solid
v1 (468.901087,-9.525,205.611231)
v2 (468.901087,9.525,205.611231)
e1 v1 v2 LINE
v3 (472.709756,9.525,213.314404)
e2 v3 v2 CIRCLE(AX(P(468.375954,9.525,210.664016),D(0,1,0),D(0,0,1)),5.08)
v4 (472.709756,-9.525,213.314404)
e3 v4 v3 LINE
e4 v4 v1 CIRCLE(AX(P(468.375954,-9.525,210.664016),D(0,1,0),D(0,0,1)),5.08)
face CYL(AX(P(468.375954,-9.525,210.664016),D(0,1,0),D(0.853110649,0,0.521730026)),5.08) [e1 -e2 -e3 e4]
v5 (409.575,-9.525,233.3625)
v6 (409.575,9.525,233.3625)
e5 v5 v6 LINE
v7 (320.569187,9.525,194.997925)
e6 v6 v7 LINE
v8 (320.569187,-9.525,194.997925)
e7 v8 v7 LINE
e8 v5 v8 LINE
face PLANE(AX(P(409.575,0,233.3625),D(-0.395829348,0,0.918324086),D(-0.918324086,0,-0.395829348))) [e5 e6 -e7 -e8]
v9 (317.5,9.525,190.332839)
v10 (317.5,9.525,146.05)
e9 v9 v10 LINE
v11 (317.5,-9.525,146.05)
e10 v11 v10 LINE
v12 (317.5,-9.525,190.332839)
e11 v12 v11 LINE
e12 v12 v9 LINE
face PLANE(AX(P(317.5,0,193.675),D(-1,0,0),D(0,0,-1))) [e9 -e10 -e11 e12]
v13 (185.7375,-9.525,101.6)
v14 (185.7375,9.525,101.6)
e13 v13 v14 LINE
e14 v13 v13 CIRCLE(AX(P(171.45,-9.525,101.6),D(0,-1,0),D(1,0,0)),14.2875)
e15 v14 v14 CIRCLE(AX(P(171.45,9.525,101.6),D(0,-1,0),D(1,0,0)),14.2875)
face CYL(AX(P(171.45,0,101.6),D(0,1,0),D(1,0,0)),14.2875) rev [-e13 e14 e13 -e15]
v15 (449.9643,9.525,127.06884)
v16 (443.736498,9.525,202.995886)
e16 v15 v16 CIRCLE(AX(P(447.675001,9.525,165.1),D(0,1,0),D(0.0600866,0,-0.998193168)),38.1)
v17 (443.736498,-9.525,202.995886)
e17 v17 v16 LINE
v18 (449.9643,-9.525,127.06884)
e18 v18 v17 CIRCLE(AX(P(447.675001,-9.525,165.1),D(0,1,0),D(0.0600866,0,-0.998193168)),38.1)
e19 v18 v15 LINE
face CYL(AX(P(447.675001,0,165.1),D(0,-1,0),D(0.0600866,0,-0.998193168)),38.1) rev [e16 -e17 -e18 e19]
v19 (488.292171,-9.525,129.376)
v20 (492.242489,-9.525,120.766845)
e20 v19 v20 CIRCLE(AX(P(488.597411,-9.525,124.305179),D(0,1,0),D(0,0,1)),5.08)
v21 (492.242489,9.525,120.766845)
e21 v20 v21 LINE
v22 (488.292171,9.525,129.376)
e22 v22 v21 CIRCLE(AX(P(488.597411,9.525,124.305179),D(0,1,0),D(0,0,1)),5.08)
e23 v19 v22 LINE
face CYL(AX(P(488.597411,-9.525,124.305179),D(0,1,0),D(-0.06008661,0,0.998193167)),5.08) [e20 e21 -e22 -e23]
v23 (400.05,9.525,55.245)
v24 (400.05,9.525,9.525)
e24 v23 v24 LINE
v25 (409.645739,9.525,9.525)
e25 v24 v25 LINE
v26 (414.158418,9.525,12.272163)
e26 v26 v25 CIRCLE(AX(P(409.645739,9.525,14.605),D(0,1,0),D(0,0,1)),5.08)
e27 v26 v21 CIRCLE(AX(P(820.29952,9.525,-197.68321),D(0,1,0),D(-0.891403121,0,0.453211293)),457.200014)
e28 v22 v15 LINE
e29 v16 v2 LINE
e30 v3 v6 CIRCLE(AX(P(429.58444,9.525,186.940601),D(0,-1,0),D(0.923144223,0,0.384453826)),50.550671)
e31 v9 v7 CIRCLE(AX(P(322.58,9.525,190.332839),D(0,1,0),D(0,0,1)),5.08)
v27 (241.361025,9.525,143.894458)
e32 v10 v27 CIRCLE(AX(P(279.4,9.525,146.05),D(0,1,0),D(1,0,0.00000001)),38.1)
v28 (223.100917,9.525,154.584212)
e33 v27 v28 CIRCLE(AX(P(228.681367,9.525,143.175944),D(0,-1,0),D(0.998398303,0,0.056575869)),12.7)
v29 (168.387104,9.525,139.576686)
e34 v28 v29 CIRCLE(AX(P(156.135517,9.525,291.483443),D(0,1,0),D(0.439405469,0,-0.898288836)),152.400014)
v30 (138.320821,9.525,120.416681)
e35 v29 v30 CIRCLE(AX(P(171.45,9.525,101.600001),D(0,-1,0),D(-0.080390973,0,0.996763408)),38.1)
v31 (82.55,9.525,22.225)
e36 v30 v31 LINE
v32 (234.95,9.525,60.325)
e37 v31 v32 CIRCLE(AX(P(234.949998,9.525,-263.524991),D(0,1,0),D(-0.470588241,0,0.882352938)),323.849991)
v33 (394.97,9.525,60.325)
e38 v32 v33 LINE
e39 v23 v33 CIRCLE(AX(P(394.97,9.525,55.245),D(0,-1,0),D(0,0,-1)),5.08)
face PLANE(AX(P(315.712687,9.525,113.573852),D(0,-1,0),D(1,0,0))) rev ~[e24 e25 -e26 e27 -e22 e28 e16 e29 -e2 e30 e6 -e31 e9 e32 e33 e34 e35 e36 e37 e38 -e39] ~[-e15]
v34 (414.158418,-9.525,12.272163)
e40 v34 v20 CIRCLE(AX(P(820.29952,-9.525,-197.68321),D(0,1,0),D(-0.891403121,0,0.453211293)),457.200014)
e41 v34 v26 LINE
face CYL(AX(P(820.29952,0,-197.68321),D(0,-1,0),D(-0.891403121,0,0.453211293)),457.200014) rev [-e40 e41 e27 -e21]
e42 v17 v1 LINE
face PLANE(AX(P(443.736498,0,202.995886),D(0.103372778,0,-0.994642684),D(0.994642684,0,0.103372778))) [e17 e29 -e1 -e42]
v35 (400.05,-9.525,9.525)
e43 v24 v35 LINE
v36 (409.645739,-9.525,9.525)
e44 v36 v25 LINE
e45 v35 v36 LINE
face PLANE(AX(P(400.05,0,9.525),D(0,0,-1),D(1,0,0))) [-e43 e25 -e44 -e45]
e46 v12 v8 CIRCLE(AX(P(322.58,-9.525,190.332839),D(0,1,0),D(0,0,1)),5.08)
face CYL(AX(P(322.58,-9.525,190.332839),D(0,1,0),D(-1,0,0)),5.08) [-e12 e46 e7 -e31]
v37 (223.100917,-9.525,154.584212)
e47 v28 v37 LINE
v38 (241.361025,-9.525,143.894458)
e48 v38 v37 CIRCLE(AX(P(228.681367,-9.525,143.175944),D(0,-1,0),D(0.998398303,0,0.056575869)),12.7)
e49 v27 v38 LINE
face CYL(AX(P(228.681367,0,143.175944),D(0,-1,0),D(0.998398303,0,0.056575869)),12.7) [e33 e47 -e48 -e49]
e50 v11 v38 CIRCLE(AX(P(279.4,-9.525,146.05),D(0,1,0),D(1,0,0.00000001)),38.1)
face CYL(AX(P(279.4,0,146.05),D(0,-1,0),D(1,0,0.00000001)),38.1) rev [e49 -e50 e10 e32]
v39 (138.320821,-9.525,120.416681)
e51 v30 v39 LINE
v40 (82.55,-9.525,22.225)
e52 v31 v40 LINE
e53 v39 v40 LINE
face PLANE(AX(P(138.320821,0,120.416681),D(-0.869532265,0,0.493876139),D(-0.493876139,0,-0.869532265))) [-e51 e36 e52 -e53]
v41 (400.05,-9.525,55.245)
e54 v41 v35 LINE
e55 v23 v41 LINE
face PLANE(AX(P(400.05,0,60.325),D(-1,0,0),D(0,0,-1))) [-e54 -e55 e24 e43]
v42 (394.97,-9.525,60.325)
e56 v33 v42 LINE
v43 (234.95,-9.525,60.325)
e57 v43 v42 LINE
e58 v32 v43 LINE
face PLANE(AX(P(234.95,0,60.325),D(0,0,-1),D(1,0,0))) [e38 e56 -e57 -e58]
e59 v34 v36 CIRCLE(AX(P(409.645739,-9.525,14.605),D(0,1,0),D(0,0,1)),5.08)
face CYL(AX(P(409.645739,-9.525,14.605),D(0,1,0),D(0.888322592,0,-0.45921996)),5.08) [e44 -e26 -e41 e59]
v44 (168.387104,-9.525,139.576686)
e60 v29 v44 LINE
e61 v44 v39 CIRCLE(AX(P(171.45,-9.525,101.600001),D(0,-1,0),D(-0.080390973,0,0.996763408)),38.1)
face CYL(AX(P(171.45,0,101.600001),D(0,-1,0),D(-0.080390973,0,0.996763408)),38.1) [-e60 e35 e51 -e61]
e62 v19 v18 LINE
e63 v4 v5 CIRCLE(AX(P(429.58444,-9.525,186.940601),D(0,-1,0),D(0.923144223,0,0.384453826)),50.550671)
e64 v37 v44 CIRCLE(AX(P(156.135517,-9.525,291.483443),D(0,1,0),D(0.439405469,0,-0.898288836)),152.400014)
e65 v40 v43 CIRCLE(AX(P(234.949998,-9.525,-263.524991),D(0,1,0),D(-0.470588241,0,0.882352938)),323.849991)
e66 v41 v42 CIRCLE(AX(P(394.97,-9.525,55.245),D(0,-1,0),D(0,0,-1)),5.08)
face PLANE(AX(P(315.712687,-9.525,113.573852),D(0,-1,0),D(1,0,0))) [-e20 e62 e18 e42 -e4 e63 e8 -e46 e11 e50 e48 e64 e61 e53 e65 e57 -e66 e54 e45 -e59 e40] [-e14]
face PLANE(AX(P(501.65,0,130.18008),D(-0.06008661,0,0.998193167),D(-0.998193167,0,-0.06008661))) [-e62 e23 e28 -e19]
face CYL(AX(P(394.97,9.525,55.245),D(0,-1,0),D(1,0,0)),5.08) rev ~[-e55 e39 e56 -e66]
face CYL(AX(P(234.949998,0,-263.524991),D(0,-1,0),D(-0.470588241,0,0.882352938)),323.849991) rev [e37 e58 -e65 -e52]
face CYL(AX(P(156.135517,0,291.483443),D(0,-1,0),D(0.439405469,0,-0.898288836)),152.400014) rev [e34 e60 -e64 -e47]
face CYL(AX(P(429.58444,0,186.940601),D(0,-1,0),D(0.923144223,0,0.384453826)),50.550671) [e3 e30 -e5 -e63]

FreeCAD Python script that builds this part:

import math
import FreeCAD as App
import Part
import Sketcher

V = App.Vector
Q = App.Units.Quantity


def edges_at(feature, points):
    """Names of the edges that pass closest to the given points."""
    edges = feature.Shape.Edges
    near = lambda p: min(range(len(edges)), key=lambda i: edges[i].distToShape(Part.Vertex(*p))[0])
    return sorted({f"Edge{near(p) + 1}" for p in points})

doc = App.newDocument("Part")
body = doc.addObject("PartDesign::Body", "Body")

# Sketch on XZ plane
sketch1 = body.newObject("Sketcher::SketchObject", "Sketch")
sketch1.AttachmentSupport = (doc.getObject("XZ_Plane"), [""])
sketch1.MapMode = "FlatFace"
sketch1.addGeometry(Part.ArcOfCircle(Part.Circle(V(279, 146, 0), V(0, 0, 1), 38), math.radians(-177), math.radians(0)), False)
sketch1.addGeometry(Part.ArcOfCircle(Part.Circle(V(229, 143, 0), V(0, 0, 1), 13), math.radians(3), math.radians(116)), False)
sketch1.addGeometry(Part.ArcOfCircle(Part.Circle(V(156, 291, 0), V(0, 0, 1), 152), math.radians(-85), math.radians(-64)), False)
sketch1.addGeometry(Part.ArcOfCircle(Part.Circle(V(171, 102, 0), V(0, 0, 1), 38), math.radians(95), math.radians(150)), False)
sketch1.addGeometry(Part.LineSegment(V(138, 120, 0), V(83, 22, 0)), False)
sketch1.addGeometry(Part.ArcOfCircle(Part.Circle(V(235, -264, 0), V(0, 0, 1), 324), math.radians(90), math.radians(118)), False)
sketch1.addGeometry(Part.LineSegment(V(235, 60, 0), V(400, 60, 0)), False)
sketch1.addGeometry(Part.LineSegment(V(400, 60, 0), V(400, 10, 0)), False)
sketch1.addGeometry(Part.LineSegment(V(400, 10, 0), V(413, 10, 0)), False)
sketch1.addGeometry(Part.ArcOfCircle(Part.Circle(V(820, -198, 0), V(0, 0, 1), 457), math.radians(134.18), math.radians(153.05)), False)
sketch1.addGeometry(Part.LineSegment(V(502, 130, 0), V(450, 127, 0)), False)
sketch1.addGeometry(Part.ArcOfCircle(Part.Circle(V(448, 165, 0), V(0, 0, 1), 38), math.radians(96), math.radians(273)), False)
sketch1.addGeometry(Part.LineSegment(V(444, 203, 0), V(476, 206, 0)), False)
sketch1.addGeometry(Part.ArcOfCircle(Part.Circle(V(430, 187, 0), V(0, 0, 1), 51), math.radians(23), math.radians(113)), False)
sketch1.addGeometry(Part.LineSegment(V(410, 233, 0), V(318, 194, 0)), False)
sketch1.addGeometry(Part.LineSegment(V(318, 194, 0), V(318, 146, 0)), False)
sketch1.addGeometry(Part.Circle(V(171, 102, 0), V(0, 0, 1), 14), False)
sketch1.addConstraint(Sketcher.Constraint("Tangent", 0, 1, 1, 1))
sketch1.addConstraint(Sketcher.Constraint("Tangent", 1, 2, 2, 2))
sketch1.addConstraint(Sketcher.Constraint("Tangent", 2, 1, 3, 1))
sketch1.addConstraint(Sketcher.Constraint("Tangent", 3, 2, 4, 1))
sketch1.addConstraint(Sketcher.Constraint("Coincident", 4, 2, 5, 2))
sketch1.addConstraint(Sketcher.Constraint("Tangent", 5, 1, 6, 1))
sketch1.addConstraint(Sketcher.Constraint("Coincident", 6, 2, 7, 1))
sketch1.addConstraint(Sketcher.Constraint("Coincident", 7, 2, 8, 1))
sketch1.addConstraint(Sketcher.Constraint("Coincident", 8, 2, 9, 2))
sketch1.addConstraint(Sketcher.Constraint("Coincident", 9, 1, 10, 1))
sketch1.addConstraint(Sketcher.Constraint("Tangent", 10, 2, 11, 2))
sketch1.addConstraint(Sketcher.Constraint("Tangent", 11, 1, 12, 1))
sketch1.addConstraint(Sketcher.Constraint("Coincident", 12, 2, 13, 1))
sketch1.addConstraint(Sketcher.Constraint("Tangent", 13, 2, 14, 1))
sketch1.addConstraint(Sketcher.Constraint("Coincident", 14, 2, 15, 1))
sketch1.addConstraint(Sketcher.Constraint("Tangent", 15, 2, 0, 2))
sketch1.addConstraint(Sketcher.Constraint("Horizontal", 6))
sketch1.addConstraint(Sketcher.Constraint("Vertical", 7))
sketch1.addConstraint(Sketcher.Constraint("Horizontal", 8))
sketch1.addConstraint(Sketcher.Constraint("Vertical", 15))
sketch1.addConstraint(Sketcher.Constraint("Coincident", 16, 3, 3, 3))
sketch1.addConstraint(Sketcher.Constraint("Equal", 0, 3))
sketch1.addConstraint(Sketcher.Constraint("Equal", 3, 11))
sketch1.addConstraint(Sketcher.Constraint("Radius", 0, Q("1.5 in")))
sketch1.addConstraint(Sketcher.Constraint("Radius", 1, Q("0.5 in")))
sketch1.addConstraint(Sketcher.Constraint("DistanceY", 7, 2, 7, 1, Q("2 in")))
sketch1.addConstraint(Sketcher.Constraint("Diameter", 16, Q("1.125 in")))
sketch1.addConstraint(Sketcher.Constraint("DistanceX", 6, 1, 6, 2, Q("6.5 in")))
sketch1.addConstraint(Sketcher.Constraint("DistanceX", 8, 1, 8, 2, Q("0.5 in")))
sketch1.addConstraint(Sketcher.Constraint("DistanceX", -1, 1, 0, 3, Q("11 in")))
sketch1.addConstraint(Sketcher.Constraint("DistanceY", -1, 1, 3, 3, Q("4 in")))
sketch1.addConstraint(Sketcher.Constraint("DistanceX", 6, 2, 9, 1, Q("4 in")))
sketch1.addConstraint(Sketcher.Constraint("DistanceX", 12, 2, 9, 1, Q("1 in")))
sketch1.addConstraint(Sketcher.Constraint("DistanceY", -1, 1, 11, 3, Q("6.5 in")))
sketch1.addConstraint(Sketcher.Constraint("DistanceX", 3, 3, 5, 3, Q("2.4999999 in")))
sketch1.addConstraint(Sketcher.Constraint("DistanceX", 4, 2, 16, 3, Q("3.5 in")))
sketch1.addConstraint(Sketcher.Constraint("DistanceX", 13, 2, 11, 3, Q("1.5 in")))
sketch1.addConstraint(Sketcher.Constraint("DistanceY", 15, 2, 15, 1, Q("1.875 in")))
sketch1.addConstraint(Sketcher.Constraint("DistanceY", -1, 1, 0, 3, Q("5.75 in")))
sketch1.addConstraint(Sketcher.Constraint("DistanceX", -1, 1, 3, 3, Q("6.75 in")))
sketch1.addConstraint(Sketcher.Constraint("DistanceX", -1, 1, 11, 3, Q("17.625 in")))
sketch1.addConstraint(Sketcher.Constraint("DistanceY", -1, 1, 4, 2, Q("0.875 in")))
sketch1.addConstraint(Sketcher.Constraint("DistanceY", -1, 1, 5, 1, Q("2.375 in")))
sketch1.addConstraint(Sketcher.Constraint("DistanceY", -1, 1, 12, 2, Q("8.125 in")))
sketch1.addConstraint(Sketcher.Constraint("DistanceY", -1, 1, 13, 2, Q("9.1875 in")))
sketch1.addConstraint(Sketcher.Constraint("Radius", 2, 152.400014))
sketch1.addConstraint(Sketcher.Constraint("Radius", 9, 457.200014))
sketch1.addConstraint(Sketcher.Constraint("DistanceX", -1, 1, 10, 2, 449.9643))
sketch1.addConstraint(Sketcher.Constraint("DistanceY", 1, 3, 2, 3, 148.307499))
pad1 = body.newObject("PartDesign::Pad", "Pad")
pad1.Profile = sketch1
pad1.Length = Q("0.75 in")
pad1.Midplane = True
doc.recompute()

fillet = body.newObject("PartDesign::Fillet", "Fillet")
fillet.Base = (pad1, edges_at(pad1, [
    (317.5, 0, 193.675),
    (476.25, 0, 206.375),
    (501.65, 0, 130.18),
    (412.75, 0, 9.525),
    (400.05, 0, 60.325),
]))
fillet.Radius = Q("0.2 in")

doc.recompute()
